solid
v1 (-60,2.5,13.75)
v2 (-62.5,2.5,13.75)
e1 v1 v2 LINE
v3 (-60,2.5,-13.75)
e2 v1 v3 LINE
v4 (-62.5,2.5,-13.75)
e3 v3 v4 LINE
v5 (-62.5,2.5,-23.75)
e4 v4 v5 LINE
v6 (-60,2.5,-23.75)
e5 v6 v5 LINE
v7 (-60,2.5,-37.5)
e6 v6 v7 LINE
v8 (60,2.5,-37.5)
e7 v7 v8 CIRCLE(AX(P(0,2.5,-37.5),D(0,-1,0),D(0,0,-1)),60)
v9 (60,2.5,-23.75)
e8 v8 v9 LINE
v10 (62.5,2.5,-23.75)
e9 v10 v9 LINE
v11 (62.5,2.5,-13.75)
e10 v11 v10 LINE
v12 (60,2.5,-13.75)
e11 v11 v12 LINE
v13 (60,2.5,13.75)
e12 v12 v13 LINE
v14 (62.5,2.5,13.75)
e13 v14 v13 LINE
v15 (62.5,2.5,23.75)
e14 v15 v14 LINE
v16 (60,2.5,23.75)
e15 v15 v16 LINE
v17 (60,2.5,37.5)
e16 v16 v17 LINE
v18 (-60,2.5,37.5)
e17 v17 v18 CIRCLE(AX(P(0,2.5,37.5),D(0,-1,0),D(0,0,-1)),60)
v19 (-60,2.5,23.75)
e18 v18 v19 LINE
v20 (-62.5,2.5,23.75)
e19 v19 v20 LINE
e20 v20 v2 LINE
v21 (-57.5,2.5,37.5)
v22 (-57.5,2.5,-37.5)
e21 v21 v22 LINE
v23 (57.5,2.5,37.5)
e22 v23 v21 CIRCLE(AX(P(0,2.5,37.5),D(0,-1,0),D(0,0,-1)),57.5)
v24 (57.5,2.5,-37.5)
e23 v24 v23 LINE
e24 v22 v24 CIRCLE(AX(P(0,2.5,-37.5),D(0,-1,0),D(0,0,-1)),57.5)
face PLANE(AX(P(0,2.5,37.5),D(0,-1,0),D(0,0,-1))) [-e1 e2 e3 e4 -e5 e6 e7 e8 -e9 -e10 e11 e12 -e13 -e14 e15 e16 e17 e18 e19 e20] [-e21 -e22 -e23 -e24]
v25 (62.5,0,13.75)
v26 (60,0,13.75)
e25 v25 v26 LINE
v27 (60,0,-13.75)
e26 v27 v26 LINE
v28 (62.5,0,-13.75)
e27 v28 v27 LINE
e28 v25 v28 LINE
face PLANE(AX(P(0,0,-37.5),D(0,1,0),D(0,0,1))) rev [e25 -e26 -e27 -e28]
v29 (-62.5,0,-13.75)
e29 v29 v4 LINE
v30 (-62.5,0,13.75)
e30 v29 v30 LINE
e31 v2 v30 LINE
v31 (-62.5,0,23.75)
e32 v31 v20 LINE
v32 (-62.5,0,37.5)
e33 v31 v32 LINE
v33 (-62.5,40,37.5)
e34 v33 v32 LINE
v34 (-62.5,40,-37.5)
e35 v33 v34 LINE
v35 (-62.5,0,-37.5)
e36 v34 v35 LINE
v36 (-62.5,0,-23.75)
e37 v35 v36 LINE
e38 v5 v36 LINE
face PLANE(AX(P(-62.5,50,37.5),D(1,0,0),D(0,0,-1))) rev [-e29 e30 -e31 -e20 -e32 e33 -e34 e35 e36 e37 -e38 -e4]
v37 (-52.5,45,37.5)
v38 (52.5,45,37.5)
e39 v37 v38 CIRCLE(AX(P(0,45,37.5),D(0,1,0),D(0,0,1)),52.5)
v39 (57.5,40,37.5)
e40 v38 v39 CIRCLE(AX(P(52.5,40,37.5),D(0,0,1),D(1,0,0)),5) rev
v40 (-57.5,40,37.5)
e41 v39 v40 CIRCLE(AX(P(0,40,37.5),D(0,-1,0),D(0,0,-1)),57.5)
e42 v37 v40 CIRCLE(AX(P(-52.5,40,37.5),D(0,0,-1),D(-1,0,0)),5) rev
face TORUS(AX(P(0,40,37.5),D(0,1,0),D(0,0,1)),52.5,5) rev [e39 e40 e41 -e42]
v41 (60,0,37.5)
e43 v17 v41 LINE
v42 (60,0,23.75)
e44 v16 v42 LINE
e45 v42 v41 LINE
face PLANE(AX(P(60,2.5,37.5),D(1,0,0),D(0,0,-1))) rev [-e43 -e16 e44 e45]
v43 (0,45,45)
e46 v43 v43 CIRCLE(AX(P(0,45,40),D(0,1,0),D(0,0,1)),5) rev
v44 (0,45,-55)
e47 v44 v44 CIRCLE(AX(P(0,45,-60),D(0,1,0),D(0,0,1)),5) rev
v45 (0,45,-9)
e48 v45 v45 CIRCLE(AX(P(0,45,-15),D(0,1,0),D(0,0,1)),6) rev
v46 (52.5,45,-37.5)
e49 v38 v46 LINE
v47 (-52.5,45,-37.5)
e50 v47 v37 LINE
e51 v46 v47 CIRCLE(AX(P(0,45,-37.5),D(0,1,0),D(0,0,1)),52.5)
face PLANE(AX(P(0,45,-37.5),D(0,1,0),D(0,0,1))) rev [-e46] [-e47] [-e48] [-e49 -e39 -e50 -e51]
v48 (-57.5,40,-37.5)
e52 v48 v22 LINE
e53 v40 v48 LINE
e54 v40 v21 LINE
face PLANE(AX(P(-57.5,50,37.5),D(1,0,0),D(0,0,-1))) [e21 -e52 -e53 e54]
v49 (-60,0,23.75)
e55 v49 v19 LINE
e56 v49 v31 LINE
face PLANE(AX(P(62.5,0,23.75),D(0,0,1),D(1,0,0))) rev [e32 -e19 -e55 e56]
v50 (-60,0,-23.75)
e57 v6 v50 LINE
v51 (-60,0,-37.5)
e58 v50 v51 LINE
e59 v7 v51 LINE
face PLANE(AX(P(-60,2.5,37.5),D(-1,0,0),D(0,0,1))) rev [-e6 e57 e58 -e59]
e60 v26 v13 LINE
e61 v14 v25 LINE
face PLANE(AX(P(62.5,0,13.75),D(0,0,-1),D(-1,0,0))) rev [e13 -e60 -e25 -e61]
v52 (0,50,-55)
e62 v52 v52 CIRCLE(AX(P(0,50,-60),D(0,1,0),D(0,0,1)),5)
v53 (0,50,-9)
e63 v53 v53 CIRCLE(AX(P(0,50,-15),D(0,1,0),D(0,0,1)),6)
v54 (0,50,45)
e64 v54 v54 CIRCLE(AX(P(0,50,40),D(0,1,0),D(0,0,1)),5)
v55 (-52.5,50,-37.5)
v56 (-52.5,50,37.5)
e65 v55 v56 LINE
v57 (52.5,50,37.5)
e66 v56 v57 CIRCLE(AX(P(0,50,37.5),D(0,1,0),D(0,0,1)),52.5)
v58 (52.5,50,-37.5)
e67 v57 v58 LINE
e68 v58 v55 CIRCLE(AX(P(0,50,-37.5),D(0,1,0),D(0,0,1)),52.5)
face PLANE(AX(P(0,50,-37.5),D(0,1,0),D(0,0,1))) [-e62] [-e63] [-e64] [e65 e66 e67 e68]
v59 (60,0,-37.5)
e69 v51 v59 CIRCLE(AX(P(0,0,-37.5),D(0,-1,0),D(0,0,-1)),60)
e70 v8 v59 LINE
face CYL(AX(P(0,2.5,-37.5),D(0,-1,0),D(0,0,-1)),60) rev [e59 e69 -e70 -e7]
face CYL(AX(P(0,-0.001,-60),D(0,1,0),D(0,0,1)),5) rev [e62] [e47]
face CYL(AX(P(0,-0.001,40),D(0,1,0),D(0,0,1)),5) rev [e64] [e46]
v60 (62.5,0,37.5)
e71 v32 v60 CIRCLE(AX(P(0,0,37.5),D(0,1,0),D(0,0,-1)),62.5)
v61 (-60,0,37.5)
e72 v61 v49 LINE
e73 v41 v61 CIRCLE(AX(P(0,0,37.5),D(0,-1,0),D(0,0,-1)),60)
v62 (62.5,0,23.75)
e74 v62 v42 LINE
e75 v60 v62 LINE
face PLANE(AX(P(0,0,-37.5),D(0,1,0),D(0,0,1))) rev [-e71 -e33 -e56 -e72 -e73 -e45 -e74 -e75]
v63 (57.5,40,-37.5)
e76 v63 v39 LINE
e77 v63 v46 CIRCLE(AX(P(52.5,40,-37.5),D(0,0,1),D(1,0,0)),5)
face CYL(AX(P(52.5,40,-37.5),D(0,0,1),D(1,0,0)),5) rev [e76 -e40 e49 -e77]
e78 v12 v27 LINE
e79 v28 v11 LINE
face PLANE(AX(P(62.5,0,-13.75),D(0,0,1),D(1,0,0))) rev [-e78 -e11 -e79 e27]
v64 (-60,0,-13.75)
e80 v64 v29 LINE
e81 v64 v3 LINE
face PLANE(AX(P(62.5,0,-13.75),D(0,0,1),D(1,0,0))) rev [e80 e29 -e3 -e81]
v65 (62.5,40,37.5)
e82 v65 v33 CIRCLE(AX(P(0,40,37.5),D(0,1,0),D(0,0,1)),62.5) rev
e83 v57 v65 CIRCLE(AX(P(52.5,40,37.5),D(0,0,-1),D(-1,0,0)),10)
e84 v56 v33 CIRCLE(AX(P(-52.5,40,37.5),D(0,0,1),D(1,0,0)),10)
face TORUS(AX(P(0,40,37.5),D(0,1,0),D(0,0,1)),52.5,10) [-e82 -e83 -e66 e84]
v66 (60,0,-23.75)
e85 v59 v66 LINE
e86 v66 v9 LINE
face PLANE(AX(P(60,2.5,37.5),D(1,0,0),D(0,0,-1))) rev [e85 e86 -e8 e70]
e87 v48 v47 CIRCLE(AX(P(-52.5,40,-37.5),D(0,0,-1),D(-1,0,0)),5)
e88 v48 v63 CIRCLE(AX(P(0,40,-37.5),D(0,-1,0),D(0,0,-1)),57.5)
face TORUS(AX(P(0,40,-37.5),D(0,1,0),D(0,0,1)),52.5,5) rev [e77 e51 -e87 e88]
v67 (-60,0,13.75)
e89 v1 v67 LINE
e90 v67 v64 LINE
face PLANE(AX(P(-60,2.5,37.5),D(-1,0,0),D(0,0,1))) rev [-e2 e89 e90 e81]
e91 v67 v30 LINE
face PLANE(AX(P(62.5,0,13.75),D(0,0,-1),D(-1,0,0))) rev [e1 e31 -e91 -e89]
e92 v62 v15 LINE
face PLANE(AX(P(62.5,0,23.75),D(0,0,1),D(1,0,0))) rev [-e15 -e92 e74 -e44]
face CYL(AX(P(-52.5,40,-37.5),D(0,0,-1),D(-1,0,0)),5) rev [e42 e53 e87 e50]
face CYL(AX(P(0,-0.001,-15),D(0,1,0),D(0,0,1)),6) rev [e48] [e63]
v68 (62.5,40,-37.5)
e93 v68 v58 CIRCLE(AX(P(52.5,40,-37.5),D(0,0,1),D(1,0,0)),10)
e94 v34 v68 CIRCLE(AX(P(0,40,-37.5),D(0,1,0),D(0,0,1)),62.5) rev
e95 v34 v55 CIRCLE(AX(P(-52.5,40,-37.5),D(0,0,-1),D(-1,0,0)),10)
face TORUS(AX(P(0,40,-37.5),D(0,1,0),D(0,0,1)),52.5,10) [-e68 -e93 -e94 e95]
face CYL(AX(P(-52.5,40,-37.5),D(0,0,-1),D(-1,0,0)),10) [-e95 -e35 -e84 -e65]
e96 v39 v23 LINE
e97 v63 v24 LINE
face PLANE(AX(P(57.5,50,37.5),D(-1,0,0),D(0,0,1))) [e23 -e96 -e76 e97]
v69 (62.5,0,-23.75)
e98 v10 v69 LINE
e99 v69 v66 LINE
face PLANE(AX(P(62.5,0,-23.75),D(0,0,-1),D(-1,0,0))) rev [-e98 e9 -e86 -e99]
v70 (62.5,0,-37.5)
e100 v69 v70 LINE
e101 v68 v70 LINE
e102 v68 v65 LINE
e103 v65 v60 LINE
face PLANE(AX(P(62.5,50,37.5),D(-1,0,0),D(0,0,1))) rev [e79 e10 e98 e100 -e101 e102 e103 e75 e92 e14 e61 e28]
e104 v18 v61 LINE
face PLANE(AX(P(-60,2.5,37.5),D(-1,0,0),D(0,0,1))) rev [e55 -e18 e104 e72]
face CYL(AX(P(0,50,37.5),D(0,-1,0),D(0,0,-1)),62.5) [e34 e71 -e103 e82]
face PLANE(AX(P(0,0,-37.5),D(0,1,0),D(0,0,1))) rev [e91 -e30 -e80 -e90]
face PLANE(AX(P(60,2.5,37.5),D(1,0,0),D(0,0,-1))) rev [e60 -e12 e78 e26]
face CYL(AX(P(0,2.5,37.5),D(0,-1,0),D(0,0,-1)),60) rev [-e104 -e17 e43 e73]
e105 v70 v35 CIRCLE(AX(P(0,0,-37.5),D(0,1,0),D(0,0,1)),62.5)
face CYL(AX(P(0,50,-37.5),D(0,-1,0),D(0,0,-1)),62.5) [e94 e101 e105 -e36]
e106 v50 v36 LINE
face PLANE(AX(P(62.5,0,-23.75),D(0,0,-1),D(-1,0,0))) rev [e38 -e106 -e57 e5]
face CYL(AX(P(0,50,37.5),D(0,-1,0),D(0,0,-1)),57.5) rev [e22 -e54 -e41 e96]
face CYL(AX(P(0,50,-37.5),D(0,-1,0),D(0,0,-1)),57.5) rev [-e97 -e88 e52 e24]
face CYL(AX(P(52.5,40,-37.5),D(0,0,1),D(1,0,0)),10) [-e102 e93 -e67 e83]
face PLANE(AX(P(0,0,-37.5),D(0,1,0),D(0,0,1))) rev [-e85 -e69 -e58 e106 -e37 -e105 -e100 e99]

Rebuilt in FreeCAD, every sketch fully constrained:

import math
import FreeCAD as App
import Part
import Sketcher


def edges_at(feature, points):
    """Names of the edges that pass closest to the given points."""
    edges = feature.Shape.Edges
    near = lambda p: min(range(len(edges)), key=lambda i: edges[i].distToShape(Part.Vertex(*p))[0])
    return sorted({f"Edge{near(p) + 1}" for p in points})


def faces_at(feature, points):
    """Names of the faces that lie closest to the given points."""
    faces = feature.Shape.Faces
    near = lambda p: min(range(len(faces)), key=lambda i: faces[i].distToShape(Part.Vertex(*p))[0])
    return sorted({f"Face{near(p) + 1}" for p in points})

doc = App.newDocument("Part")
body = doc.addObject("PartDesign::Body", "Body")

sketch1 = body.newObject("Sketcher::SketchObject", "Sketch")
sketch1.AttachmentSupport = (doc.getObject("XZ_Plane"), [""])
sketch1.MapMode = "FlatFace"
sketch1.addGeometry([
    Part.LineSegment(App.Vector(-62.5, -37.5, 0), App.Vector(-62.5, 37.5, 0)),
    Part.ArcOfCircle(Part.Circle(App.Vector(0, 37.5, 0), App.Vector(0, 0, 1), 62.5), math.radians(0), math.radians(180)),
    Part.LineSegment(App.Vector(62.5, 37.5, 0), App.Vector(62.5, -37.5, 0)),
    Part.ArcOfCircle(Part.Circle(App.Vector(0, -37.5, 0), App.Vector(0, 0, 1), 62.5), math.radians(180), math.radians(360)),
], False)
sketch1.addConstraint([
    Sketcher.Constraint("Tangent", 0, 2, 1, 2),
    Sketcher.Constraint("Tangent", 1, 1, 2, 1),
    Sketcher.Constraint("Tangent", 2, 2, 3, 2),
    Sketcher.Constraint("Tangent", 3, 1, 0, 1),
    Sketcher.Constraint("Vertical", 0),
    Sketcher.Constraint("Vertical", 2),
    Sketcher.Constraint("Symmetric", 1, 3, 3, 3, -1, 1),
    Sketcher.Constraint("Radius", 1, 62.5),
    Sketcher.Constraint("DistanceY", 0, 1, 0, 2, 75.0),
])
pad1 = body.newObject("PartDesign::Pad", "Pad")
pad1.Profile = sketch1
pad1.Length = 50
pad1.Reversed = True
doc.recompute()

fillet = body.newObject("PartDesign::Fillet", "Fillet")
fillet.Base = (pad1, edges_at(pad1, [
    (0, 50, 100),
    (62.5, 50, 0),
    (0, 50, -100),
    (-62.5, 50, 0),
]))
fillet.Radius = 10
doc.recompute()

thickness = body.newObject("PartDesign::Thickness", "Thickness")
thickness.Base = (fillet, faces_at(fillet, [(0, 0, 0)]))
thickness.Value = 5
thickness.Reversed = True
thickness.Join = "Intersection"

sketch2 = body.newObject("Sketcher::SketchObject", "Sketch001")
sketch2.AttachmentSupport = (doc.getObject("XZ_Plane"), [""])
sketch2.MapMode = "FlatFace"
sketch2.addGeometry([
    Part.LineSegment(App.Vector(-60, 37.5, 0), App.Vector(-60, -37.5, 0)),
    Part.ArcOfCircle(Part.Circle(App.Vector(0, -37.5, 0), App.Vector(0, 0, 1), 60), math.radians(180), math.radians(360)),
    Part.LineSegment(App.Vector(60, -37.5, 0), App.Vector(60, 37.5, 0)),
    Part.ArcOfCircle(Part.Circle(App.Vector(0, 37.5, 0), App.Vector(0, 0, 1), 60), math.radians(0), math.radians(180)),
], False)
sketch2.addConstraint([
    Sketcher.Constraint("Tangent", 0, 2, 1, 1),
    Sketcher.Constraint("Tangent", 1, 2, 2, 1),
    Sketcher.Constraint("Tangent", 2, 2, 3, 1),
    Sketcher.Constraint("Tangent", 3, 2, 0, 1),
    Sketcher.Constraint("Vertical", 0),
    Sketcher.Constraint("Vertical", 2),
    Sketcher.Constraint("Symmetric", 1, 3, 3, 3, -1, 1),
    Sketcher.Constraint("Radius", 1, 60.0),
    Sketcher.Constraint("DistanceY", 0, 2, 0, 1, 75.0),
])
pocket1 = body.newObject("PartDesign::Pocket", "Pocket")
pocket1.Profile = sketch2
pocket1.Length = 2.5

sketch3 = body.newObject("Sketcher::SketchObject", "Sketch002")
sketch3.AttachmentSupport = (doc.getObject("YZ_Plane"), [""])
sketch3.MapMode = "FlatFace"
sketch3.AttachmentOffset = App.Placement(App.Vector(0, 0, -62.5), App.Rotation())
sketch3.addGeometry([
    Part.LineSegment(App.Vector(2.5, -23.75, 0), App.Vector(0, -23.75, 0)),
    Part.LineSegment(App.Vector(0, -23.75, 0), App.Vector(0, -13.75, 0)),
    Part.LineSegment(App.Vector(0, -13.75, 0), App.Vector(2.5, -13.75, 0)),
    Part.LineSegment(App.Vector(2.5, -13.75, 0), App.Vector(2.5, -23.75, 0)),
    Part.LineSegment(App.Vector(2.5, 13.75, 0), App.Vector(0, 13.75, 0)),
    Part.LineSegment(App.Vector(0, 13.75, 0), App.Vector(0, 23.75, 0)),
    Part.LineSegment(App.Vector(0, 23.75, 0), App.Vector(2.5, 23.75, 0)),
    Part.LineSegment(App.Vector(2.5, 23.75, 0), App.Vector(2.5, 13.75, 0)),
], False)
sketch3.addConstraint([
    Sketcher.Constraint("Coincident", 0, 2, 1, 1),
    Sketcher.Constraint("Coincident", 1, 2, 2, 1),
    Sketcher.Constraint("Coincident", 2, 2, 3, 1),
    Sketcher.Constraint("Coincident", 3, 2, 0, 1),
    Sketcher.Constraint("Coincident", 4, 2, 5, 1),
    Sketcher.Constraint("Coincident", 5, 2, 6, 1),
    Sketcher.Constraint("Coincident", 6, 2, 7, 1),
    Sketcher.Constraint("Coincident", 7, 2, 4, 1),
    Sketcher.Constraint("Horizontal", 0),
    Sketcher.Constraint("Vertical", 1),
    Sketcher.Constraint("Horizontal", 2),
    Sketcher.Constraint("Vertical", 3),
    Sketcher.Constraint("Horizontal", 4),
    Sketcher.Constraint("Vertical", 5),
    Sketcher.Constraint("Horizontal", 6),
    Sketcher.Constraint("Vertical", 7),
    Sketcher.Constraint("Symmetric", 1, 2, 4, 2, -1, 1),
    Sketcher.Constraint("Symmetric", 0, 2, 5, 2, -1),
    Sketcher.Constraint("Vertical", 3, 2, 6, 2),
    Sketcher.Constraint("DistanceY", 1, 1, 1, 2, 10.0),
    Sketcher.Constraint("DistanceX", 0, 2, 0, 1, 2.5),
    Sketcher.Constraint("DistanceY", 1, 2, 4, 2, 27.5),
])
pocket2 = body.newObject("PartDesign::Pocket", "Pocket001")
pocket2.Profile = sketch3
pocket2.Type = "ThroughAll"
pocket2.Reversed = True

sketch4 = body.newObject("Sketcher::SketchObject", "Sketch003")
sketch4.AttachmentSupport = (doc.getObject("XZ_Plane"), [""])
sketch4.MapMode = "FlatFace"
sketch4.AttachmentOffset = App.Placement(App.Vector(0, 0, -50), App.Rotation())
sketch4.addGeometry(Part.Circle(App.Vector(0, -60, 0), App.Vector(0, 0, 1), 5), False)
sketch4.addConstraint([
    Sketcher.Constraint("PointOnObject", 0, 3, -2),
    Sketcher.Constraint("Diameter", 0, 10.0),
    Sketcher.Constraint("DistanceY", 0, 3, -1, 1, 60.0),
])
pocket3 = body.newObject("PartDesign::Pocket", "Pocket002")
pocket3.Profile = sketch4
pocket3.Type = "UpToFirst"
pocket3.Reversed = True

sketch5 = body.newObject("Sketcher::SketchObject", "Sketch004")
sketch5.AttachmentSupport = (doc.getObject("XZ_Plane"), [""])
sketch5.MapMode = "FlatFace"
sketch5.AttachmentOffset = App.Placement(App.Vector(0, 0, -50), App.Rotation())
sketch5.addGeometry(Part.Circle(App.Vector(0, -15, 0), App.Vector(0, 0, 1), 6), False)
sketch5.addConstraint([
    Sketcher.Constraint("PointOnObject", 0, 3, -2),
    Sketcher.Constraint("Diameter", 0, 12.0),
    Sketcher.Constraint("DistanceY", 0, 3, -1, 1, 15.0),
])
pocket4 = body.newObject("PartDesign::Pocket", "Pocket003")
pocket4.Profile = sketch5
pocket4.Type = "UpToFirst"
pocket4.Reversed = True

sketch6 = body.newObject("Sketcher::SketchObject", "Sketch005")
sketch6.AttachmentSupport = (doc.getObject("XZ_Plane"), [""])
sketch6.MapMode = "FlatFace"
sketch6.AttachmentOffset = App.Placement(App.Vector(0, 0, -50), App.Rotation())
sketch6.addGeometry(Part.Circle(App.Vector(0, 40, 0), App.Vector(0, 0, 1), 5), False)
sketch6.addConstraint([
    Sketcher.Constraint("PointOnObject", 0, 3, -2),
    Sketcher.Constraint("Diameter", 0, 10.0),
    Sketcher.Constraint("DistanceY", -1, 1, 0, 3, 40.0),
])
pocket5 = body.newObject("PartDesign::Pocket", "Pocket004")
pocket5.Profile = sketch6
pocket5.Type = "UpToFirst"
pocket5.Reversed = True

doc.recompute()
